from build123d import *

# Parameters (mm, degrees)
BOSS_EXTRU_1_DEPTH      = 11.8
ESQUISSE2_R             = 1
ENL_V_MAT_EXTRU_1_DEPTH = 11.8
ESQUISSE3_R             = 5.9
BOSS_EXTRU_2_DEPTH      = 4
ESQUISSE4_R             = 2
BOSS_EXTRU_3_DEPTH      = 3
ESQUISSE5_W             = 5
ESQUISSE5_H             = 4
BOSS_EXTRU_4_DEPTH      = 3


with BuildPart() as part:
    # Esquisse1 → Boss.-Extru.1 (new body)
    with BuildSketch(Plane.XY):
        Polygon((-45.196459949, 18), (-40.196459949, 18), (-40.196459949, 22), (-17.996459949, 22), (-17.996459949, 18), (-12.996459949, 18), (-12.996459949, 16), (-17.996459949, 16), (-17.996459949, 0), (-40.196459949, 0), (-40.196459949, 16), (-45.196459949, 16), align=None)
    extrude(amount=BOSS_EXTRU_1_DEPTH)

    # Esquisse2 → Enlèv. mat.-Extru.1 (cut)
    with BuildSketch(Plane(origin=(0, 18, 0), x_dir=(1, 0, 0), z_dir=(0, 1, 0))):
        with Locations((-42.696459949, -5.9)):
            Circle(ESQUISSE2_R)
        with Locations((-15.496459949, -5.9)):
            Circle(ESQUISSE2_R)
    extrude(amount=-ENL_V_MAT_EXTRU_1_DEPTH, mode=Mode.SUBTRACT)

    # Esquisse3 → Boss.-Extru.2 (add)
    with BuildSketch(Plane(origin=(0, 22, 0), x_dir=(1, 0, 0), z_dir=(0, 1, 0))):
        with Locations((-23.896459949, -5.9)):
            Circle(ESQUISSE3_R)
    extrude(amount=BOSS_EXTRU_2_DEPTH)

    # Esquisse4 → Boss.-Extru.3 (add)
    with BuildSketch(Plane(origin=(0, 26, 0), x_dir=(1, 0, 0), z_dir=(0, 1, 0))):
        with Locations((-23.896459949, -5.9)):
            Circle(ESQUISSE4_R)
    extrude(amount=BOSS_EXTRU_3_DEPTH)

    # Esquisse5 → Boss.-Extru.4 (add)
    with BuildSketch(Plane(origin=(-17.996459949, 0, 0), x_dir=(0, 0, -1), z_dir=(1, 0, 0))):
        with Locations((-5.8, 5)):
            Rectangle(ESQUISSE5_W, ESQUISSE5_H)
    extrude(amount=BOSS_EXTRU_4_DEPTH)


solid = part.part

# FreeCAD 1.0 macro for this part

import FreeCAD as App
import Part
import Sketcher
from FreeCAD import Vector
Q = App.Units.Quantity

doc = App.newDocument("Part")
body = doc.addObject("PartDesign::Body", "Body")

# Sketch on XY plane
sketch1 = body.newObject("Sketcher::SketchObject", "Sketch")
sketch1.AttachmentSupport = (doc.getObject("XY_Plane"), [""])
sketch1.MapMode = "FlatFace"
sketch1.addGeometry(Part.LineSegment(Vector(-40.2, 18, 0), Vector(-45.2, 18, 0)), False)
sketch1.addGeometry(Part.LineSegment(Vector(-45.2, 18, 0), Vector(-45.2, 16, 0)), False)
sketch1.addGeometry(Part.LineSegment(Vector(-45.2, 16, 0), Vector(-40.2, 16, 0)), False)
sketch1.addGeometry(Part.LineSegment(Vector(-40.2, 16, 0), Vector(-40.2, 0, 0)), False)
sketch1.addGeometry(Part.LineSegment(Vector(-40.2, 0, 0), Vector(-18, 0, 0)), False)
sketch1.addGeometry(Part.LineSegment(Vector(-18, 0, 0), Vector(-18, 16, 0)), False)
sketch1.addGeometry(Part.LineSegment(Vector(-18, 16, 0), Vector(-13, 16, 0)), False)
sketch1.addGeometry(Part.LineSegment(Vector(-13, 16, 0), Vector(-13, 18, 0)), False)
sketch1.addGeometry(Part.LineSegment(Vector(-13, 18, 0), Vector(-18, 18, 0)), False)
sketch1.addGeometry(Part.LineSegment(Vector(-18, 18, 0), Vector(-18, 22, 0)), False)
sketch1.addGeometry(Part.LineSegment(Vector(-18, 22, 0), Vector(-40.2, 22, 0)), False)
sketch1.addGeometry(Part.LineSegment(Vector(-40.2, 22, 0), Vector(-40.2, 18, 0)), False)
sketch1.addConstraint(Sketcher.Constraint("Coincident", 0, 2, 1, 1))
sketch1.addConstraint(Sketcher.Constraint("Coincident", 1, 2, 2, 1))
sketch1.addConstraint(Sketcher.Constraint("Coincident", 2, 2, 3, 1))
sketch1.addConstraint(Sketcher.Constraint("Coincident", 3, 2, 4, 1))
sketch1.addConstraint(Sketcher.Constraint("Coincident", 4, 2, 5, 1))
sketch1.addConstraint(Sketcher.Constraint("Coincident", 5, 2, 6, 1))
sketch1.addConstraint(Sketcher.Constraint("Coincident", 6, 2, 7, 1))
sketch1.addConstraint(Sketcher.Constraint("Coincident", 7, 2, 8, 1))
sketch1.addConstraint(Sketcher.Constraint("Coincident", 8, 2, 9, 1))
sketch1.addConstraint(Sketcher.Constraint("Coincident", 9, 2, 10, 1))
sketch1.addConstraint(Sketcher.Constraint("Coincident", 10, 2, 11, 1))
sketch1.addConstraint(Sketcher.Constraint("Coincident", 11, 2, 0, 1))
sketch1.addConstraint(Sketcher.Constraint("Horizontal", 0))
sketch1.addConstraint(Sketcher.Constraint("Vertical", 1))
sketch1.addConstraint(Sketcher.Constraint("Horizontal", 2))
sketch1.addConstraint(Sketcher.Constraint("Vertical", 3))
sketch1.addConstraint(Sketcher.Constraint("Horizontal", 4))
sketch1.addConstraint(Sketcher.Constraint("Vertical", 5))
sketch1.addConstraint(Sketcher.Constraint("Horizontal", 6))
sketch1.addConstraint(Sketcher.Constraint("Vertical", 7))
sketch1.addConstraint(Sketcher.Constraint("Horizontal", 8))
sketch1.addConstraint(Sketcher.Constraint("Vertical", 9))
sketch1.addConstraint(Sketcher.Constraint("Horizontal", 10))
sketch1.addConstraint(Sketcher.Constraint("Vertical", 11))
sketch1.addConstraint(Sketcher.Constraint("PointOnObject", 3, 2, -1))
sketch1.addConstraint(Sketcher.Constraint("Horizontal", 2, 2, 5, 2))
sketch1.addConstraint(Sketcher.Constraint("Horizontal", 0, 2, 7, 2))
sketch1.addConstraint(Sketcher.Constraint("Vertical", 5, 2, 8, 2))
sketch1.addConstraint(Sketcher.Constraint("Vertical", 3, 2, 10, 2))
sketch1.addConstraint(Sketcher.Constraint("Equal", 2, 6))
sketch1.addConstraint(Sketcher.Constraint("DistanceX", 0, 2, 0, 1, Q("5 mm")))
sketch1.addConstraint(Sketcher.Constraint("DistanceY", 1, 2, 1, 1, Q("2 mm")))
sketch1.addConstraint(Sketcher.Constraint("DistanceY", 3, 2, 3, 1, Q("16 mm")))
sketch1.addConstraint(Sketcher.Constraint("DistanceY", 9, 1, 9, 2, Q("4 mm")))
sketch1.addConstraint(Sketcher.Constraint("DistanceX", 4, 1, 4, 2, Q("22.2 mm")))
sketch1.addConstraint(Sketcher.Constraint("DistanceX", 0, 2, -1, 1, Q("45.19646 mm")))
pad1 = body.newObject("PartDesign::Pad", "Pad")
pad1.Profile = sketch1
pad1.Length = 11.8

# Sketch on XZ plane
sketch2 = body.newObject("Sketcher::SketchObject", "Sketch001")
sketch2.AttachmentSupport = (doc.getObject("XZ_Plane"), [""])
sketch2.MapMode = "FlatFace"
sketch2.AttachmentOffset = App.Placement(Vector(0, 0, -18), App.Rotation())
sketch2.addGeometry(Part.Circle(Vector(-42.7, 5.9, 0), Vector(0, 0, 1), 1), False)
sketch2.addGeometry(Part.Circle(Vector(-15.5, 5.9, 0), Vector(0, 0, 1), 1), False)
sketch2.addConstraint(Sketcher.Constraint("Equal", 0, 1))
sketch2.addConstraint(Sketcher.Constraint("Horizontal", 0, 3, 1, 3))
sketch2.addConstraint(Sketcher.Constraint("Diameter", 0, Q("2 mm")))
sketch2.addConstraint(Sketcher.Constraint("DistanceY", -1, 1, 0, 3, Q("5.9 mm")))
sketch2.addConstraint(Sketcher.Constraint("DistanceX", 0, 3, 1, 3, Q("27.2 mm")))
sketch2.addConstraint(Sketcher.Constraint("DistanceX", 0, 3, -1, 1, Q("42.69646 mm")))
pocket1 = body.newObject("PartDesign::Pocket", "Pocket")
pocket1.Profile = sketch2
pocket1.Length = 11.8
pocket1.Reversed = True

# Sketch on XZ plane
sketch3 = body.newObject("Sketcher::SketchObject", "Sketch002")
sketch3.AttachmentSupport = (doc.getObject("XZ_Plane"), [""])
sketch3.MapMode = "FlatFace"
sketch3.AttachmentOffset = App.Placement(Vector(0, 0, -22), App.Rotation())
sketch3.addGeometry(Part.Circle(Vector(-24, 6, 0), Vector(0, 0, 1), 6), False)
sketch3.addConstraint(Sketcher.Constraint("Diameter", 0, Q("11.8 mm")))
sketch3.addConstraint(Sketcher.Constraint("DistanceY", -1, 1, 0, 3, Q("5.9 mm")))
sketch3.addConstraint(Sketcher.Constraint("DistanceX", 0, 3, -1, 1, Q("23.89646 mm")))
pad2 = body.newObject("PartDesign::Pad", "Pad001")
pad2.Profile = sketch3
pad2.Length = 4
pad2.Reversed = True

# Sketch on XZ plane
sketch4 = body.newObject("Sketcher::SketchObject", "Sketch003")
sketch4.AttachmentSupport = (doc.getObject("XZ_Plane"), [""])
sketch4.MapMode = "FlatFace"
sketch4.AttachmentOffset = App.Placement(Vector(0, 0, -26), App.Rotation())
sketch4.addGeometry(Part.Circle(Vector(-23.9, 5.9, 0), Vector(0, 0, 1), 2), False)
sketch4.addConstraint(Sketcher.Constraint("Diameter", 0, Q("4 mm")))
sketch4.addConstraint(Sketcher.Constraint("DistanceY", -1, 1, 0, 3, Q("5.9 mm")))
sketch4.addConstraint(Sketcher.Constraint("DistanceX", 0, 3, -1, 1, Q("23.89646 mm")))
pad3 = body.newObject("PartDesign::Pad", "Pad002")
pad3.Profile = sketch4
pad3.Length = 3
pad3.Reversed = True

# Sketch on YZ plane
sketch5 = body.newObject("Sketcher::SketchObject", "Sketch004")
sketch5.AttachmentSupport = (doc.getObject("YZ_Plane"), [""])
sketch5.MapMode = "FlatFace"
sketch5.AttachmentOffset = App.Placement(Vector(0, 0, -17.99646), App.Rotation())
sketch5.addGeometry(Part.LineSegment(Vector(7, 8.3, 0), Vector(3, 8.3, 0)), False)
sketch5.addGeometry(Part.LineSegment(Vector(3, 8.3, 0), Vector(3, 3.3, 0)), False)
sketch5.addGeometry(Part.LineSegment(Vector(3, 3.3, 0), Vector(7, 3.3, 0)), False)
sketch5.addGeometry(Part.LineSegment(Vector(7, 3.3, 0), Vector(7, 8.3, 0)), False)
sketch5.addConstraint(Sketcher.Constraint("Coincident", 0, 2, 1, 1))
sketch5.addConstraint(Sketcher.Constraint("Coincident", 1, 2, 2, 1))
sketch5.addConstraint(Sketcher.Constraint("Coincident", 2, 2, 3, 1))
sketch5.addConstraint(Sketcher.Constraint("Coincident", 3, 2, 0, 1))
sketch5.addConstraint(Sketcher.Constraint("Horizontal", 0))
sketch5.addConstraint(Sketcher.Constraint("Vertical", 1))
sketch5.addConstraint(Sketcher.Constraint("Horizontal", 2))
sketch5.addConstraint(Sketcher.Constraint("Vertical", 3))
sketch5.addConstraint(Sketcher.Constraint("DistanceX", 0, 2, 0, 1, Q("4 mm")))
sketch5.addConstraint(Sketcher.Constraint("DistanceY", 1, 2, 1, 1, Q("5 mm")))
sketch5.addConstraint(Sketcher.Constraint("DistanceX", -1, 1, 0, 2, Q("3 mm")))
sketch5.addConstraint(Sketcher.Constraint("DistanceY", -1, 1, 0, 2, Q("8.3 mm")))
pad4 = body.newObject("PartDesign::Pad", "Pad003")
pad4.Profile = sketch5
pad4.Length = 3

doc.recompute()
